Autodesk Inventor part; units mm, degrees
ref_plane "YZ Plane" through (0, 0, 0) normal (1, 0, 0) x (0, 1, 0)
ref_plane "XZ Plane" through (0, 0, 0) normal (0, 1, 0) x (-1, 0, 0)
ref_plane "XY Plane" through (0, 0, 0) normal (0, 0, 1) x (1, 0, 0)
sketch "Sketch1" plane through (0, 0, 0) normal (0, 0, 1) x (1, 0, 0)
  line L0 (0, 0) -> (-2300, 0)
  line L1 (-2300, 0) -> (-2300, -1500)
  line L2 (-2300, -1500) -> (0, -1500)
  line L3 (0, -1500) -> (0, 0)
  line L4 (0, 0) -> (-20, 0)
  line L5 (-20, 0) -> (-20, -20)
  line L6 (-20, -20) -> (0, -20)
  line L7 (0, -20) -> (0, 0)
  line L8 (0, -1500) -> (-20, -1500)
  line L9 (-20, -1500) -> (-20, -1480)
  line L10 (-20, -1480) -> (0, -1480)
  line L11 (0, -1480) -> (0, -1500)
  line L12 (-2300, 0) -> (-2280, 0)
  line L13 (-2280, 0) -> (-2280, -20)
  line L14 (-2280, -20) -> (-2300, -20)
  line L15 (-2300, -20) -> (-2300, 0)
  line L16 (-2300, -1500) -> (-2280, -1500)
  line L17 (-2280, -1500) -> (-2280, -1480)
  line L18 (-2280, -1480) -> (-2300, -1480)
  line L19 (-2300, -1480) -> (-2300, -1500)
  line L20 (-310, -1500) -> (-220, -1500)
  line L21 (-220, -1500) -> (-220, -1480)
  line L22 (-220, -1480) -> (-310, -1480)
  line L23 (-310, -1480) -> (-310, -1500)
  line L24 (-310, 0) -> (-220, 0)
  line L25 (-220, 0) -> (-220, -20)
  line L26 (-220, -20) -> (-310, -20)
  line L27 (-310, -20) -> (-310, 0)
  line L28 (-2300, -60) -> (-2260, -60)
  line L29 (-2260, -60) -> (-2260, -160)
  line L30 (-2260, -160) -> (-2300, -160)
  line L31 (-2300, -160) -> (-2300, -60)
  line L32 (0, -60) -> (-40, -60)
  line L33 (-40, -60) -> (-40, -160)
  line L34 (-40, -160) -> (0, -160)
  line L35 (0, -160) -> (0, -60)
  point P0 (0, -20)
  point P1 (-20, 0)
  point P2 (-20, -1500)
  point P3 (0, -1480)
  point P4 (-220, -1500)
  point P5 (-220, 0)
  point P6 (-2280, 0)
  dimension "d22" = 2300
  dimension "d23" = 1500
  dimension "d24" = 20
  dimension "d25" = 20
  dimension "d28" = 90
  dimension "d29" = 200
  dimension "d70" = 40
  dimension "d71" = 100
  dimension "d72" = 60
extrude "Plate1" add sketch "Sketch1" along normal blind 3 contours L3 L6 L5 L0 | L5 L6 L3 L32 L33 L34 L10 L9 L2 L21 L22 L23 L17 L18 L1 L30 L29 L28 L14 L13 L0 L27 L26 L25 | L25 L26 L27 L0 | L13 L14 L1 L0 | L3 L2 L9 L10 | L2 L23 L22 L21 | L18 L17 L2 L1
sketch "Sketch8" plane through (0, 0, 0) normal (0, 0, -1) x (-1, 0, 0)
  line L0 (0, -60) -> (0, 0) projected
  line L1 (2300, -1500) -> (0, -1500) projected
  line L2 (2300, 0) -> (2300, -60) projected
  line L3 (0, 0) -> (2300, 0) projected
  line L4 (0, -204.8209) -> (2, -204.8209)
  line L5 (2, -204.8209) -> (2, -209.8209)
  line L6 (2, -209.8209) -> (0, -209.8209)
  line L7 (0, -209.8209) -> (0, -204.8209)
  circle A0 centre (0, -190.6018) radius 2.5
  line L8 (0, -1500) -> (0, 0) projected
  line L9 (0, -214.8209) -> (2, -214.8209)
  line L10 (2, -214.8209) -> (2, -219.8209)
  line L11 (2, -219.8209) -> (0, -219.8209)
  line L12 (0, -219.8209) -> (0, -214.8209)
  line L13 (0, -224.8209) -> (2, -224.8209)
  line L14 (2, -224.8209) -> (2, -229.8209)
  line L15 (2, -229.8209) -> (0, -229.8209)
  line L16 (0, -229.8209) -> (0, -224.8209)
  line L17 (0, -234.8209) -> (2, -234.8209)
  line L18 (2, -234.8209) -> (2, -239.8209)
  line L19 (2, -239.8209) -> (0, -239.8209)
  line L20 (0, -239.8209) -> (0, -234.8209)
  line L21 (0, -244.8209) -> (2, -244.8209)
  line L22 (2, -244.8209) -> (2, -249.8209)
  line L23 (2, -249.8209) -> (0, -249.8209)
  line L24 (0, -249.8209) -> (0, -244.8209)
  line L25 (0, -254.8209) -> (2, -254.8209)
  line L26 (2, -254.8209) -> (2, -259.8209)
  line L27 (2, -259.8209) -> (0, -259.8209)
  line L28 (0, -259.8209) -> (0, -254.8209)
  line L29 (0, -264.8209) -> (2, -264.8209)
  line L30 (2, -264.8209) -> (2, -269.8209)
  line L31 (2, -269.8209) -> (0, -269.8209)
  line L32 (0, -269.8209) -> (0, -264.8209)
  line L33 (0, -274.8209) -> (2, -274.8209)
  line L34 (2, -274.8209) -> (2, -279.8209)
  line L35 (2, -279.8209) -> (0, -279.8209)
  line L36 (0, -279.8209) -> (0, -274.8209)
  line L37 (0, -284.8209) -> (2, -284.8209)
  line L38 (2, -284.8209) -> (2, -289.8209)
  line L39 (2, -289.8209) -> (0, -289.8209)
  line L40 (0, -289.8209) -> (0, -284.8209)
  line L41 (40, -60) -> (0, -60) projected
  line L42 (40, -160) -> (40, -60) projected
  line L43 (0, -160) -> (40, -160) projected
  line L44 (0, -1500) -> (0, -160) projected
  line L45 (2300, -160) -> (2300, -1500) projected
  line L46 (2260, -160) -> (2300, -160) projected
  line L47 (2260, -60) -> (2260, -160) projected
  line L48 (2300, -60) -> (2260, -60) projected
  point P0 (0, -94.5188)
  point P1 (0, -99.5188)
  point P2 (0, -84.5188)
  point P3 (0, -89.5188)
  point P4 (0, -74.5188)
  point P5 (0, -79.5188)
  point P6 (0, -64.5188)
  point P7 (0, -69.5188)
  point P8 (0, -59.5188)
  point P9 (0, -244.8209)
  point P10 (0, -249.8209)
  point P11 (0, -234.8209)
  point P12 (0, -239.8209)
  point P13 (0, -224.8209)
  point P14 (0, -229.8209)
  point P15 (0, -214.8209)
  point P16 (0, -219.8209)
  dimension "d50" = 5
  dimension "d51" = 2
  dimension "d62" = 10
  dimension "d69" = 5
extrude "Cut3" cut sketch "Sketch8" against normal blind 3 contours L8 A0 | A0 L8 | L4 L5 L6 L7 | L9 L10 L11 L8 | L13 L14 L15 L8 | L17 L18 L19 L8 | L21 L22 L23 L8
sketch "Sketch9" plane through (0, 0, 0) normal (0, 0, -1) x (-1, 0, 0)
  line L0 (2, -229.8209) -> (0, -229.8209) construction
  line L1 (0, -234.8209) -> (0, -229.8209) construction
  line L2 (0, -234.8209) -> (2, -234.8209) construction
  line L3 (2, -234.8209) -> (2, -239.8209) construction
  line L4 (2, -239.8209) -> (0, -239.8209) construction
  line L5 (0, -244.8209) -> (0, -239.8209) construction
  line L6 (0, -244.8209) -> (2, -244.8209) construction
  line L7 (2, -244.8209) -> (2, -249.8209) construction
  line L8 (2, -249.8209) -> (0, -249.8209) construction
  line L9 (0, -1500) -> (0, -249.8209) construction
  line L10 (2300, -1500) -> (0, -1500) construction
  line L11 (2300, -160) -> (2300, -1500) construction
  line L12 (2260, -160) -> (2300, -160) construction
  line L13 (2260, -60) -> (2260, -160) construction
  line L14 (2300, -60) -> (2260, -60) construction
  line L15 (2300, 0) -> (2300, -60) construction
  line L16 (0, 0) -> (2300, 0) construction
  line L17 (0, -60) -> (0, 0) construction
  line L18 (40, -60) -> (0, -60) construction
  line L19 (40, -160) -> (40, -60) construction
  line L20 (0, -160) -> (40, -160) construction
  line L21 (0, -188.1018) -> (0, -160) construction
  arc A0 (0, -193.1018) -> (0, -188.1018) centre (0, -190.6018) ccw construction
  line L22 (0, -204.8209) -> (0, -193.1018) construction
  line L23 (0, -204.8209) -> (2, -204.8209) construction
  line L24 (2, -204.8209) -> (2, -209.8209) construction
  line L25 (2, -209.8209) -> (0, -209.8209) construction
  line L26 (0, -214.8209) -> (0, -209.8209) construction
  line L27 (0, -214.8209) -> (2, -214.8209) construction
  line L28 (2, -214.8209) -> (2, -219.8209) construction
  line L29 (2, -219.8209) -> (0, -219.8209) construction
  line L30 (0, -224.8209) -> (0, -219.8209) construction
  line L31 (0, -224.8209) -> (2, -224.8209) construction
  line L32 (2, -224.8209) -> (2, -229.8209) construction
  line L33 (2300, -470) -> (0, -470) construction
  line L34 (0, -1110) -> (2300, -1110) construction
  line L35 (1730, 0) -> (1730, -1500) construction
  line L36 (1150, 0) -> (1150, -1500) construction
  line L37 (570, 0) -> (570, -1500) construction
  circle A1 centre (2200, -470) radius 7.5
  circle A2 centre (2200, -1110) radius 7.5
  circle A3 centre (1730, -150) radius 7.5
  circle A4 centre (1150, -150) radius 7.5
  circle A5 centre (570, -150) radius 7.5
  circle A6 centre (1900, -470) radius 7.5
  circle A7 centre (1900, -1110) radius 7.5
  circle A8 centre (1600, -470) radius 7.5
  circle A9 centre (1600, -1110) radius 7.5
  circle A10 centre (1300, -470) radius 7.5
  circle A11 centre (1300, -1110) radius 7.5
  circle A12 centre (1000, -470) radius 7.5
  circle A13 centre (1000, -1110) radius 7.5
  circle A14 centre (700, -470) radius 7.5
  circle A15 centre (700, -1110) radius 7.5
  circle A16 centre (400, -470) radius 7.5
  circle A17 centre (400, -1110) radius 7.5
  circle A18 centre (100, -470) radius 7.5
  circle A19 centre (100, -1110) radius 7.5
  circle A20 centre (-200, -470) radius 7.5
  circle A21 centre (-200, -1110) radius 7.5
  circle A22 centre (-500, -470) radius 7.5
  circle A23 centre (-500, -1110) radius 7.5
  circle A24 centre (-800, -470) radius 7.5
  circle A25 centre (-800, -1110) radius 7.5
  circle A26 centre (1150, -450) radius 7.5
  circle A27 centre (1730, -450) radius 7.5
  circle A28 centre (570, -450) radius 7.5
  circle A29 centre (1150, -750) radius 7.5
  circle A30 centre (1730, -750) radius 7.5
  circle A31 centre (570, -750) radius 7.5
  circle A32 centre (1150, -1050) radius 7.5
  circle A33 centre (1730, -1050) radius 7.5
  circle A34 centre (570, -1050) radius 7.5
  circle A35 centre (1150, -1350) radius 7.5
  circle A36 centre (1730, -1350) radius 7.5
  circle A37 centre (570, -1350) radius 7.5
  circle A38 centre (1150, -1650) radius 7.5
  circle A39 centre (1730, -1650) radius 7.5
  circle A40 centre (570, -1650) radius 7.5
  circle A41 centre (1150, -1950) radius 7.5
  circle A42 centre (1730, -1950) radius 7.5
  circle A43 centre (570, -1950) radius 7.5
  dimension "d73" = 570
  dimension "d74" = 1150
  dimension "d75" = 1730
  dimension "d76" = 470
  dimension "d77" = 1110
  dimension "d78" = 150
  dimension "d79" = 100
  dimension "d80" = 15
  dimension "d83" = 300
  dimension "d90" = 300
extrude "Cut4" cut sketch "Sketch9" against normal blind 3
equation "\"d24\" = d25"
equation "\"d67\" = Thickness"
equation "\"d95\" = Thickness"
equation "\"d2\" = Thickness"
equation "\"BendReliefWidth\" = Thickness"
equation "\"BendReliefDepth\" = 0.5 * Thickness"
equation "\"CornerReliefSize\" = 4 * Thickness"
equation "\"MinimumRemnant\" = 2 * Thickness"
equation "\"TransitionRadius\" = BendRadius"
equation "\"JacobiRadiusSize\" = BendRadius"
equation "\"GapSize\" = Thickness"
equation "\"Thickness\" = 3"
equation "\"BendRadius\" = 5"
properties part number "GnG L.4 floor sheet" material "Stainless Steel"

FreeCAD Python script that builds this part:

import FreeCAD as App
import Part
import Sketcher
from FreeCAD import Vector


def add_polygon(sketch, points):
    """Adds a closed chain of lines whose ends are joined by coincident constraints."""
    first, n = sketch.GeometryCount, len(points)
    for a, b in zip(points, points[1:] + points[:1]):
        sketch.addGeometry(Part.LineSegment(App.Vector(*a, 0), App.Vector(*b, 0)), False)
    for i in range(n):
        sketch.addConstraint(Sketcher.Constraint("Coincident", first + i, 2, first + (i + 1) % n, 1))

doc = App.newDocument("Part")
body = doc.addObject("PartDesign::Body", "Body")

# Sketch on XY plane
sketch1 = body.newObject("Sketcher::SketchObject", "Sketch")
sketch1.AttachmentSupport = (doc.getObject("XY_Plane"), [""])
sketch1.MapMode = "FlatFace"
add_polygon(sketch1, [(0, 0), (-2300, 0), (-2300, -60), (-2260, -60), (-2260, -160), (-2300, -160), (-2300, -1500), (0, -1500), (0, -160), (-40, -160), (-40, -60), (0, -60)])  # lines 0-11
sketch1.addConstraint([
    Sketcher.Constraint("Horizontal", 0),
    Sketcher.Constraint("Vertical", 1),
    Sketcher.Constraint("Horizontal", 2),
    Sketcher.Constraint("Vertical", 3),
    Sketcher.Constraint("Horizontal", 4),
    Sketcher.Constraint("Vertical", 5),
    Sketcher.Constraint("Horizontal", 6),
    Sketcher.Constraint("Vertical", 7),
    Sketcher.Constraint("Horizontal", 8),
    Sketcher.Constraint("Vertical", 9),
    Sketcher.Constraint("Horizontal", 10),
    Sketcher.Constraint("Vertical", 11),
    Sketcher.Constraint("Coincident", 11, 2, -1, 1),
    Sketcher.Constraint("PointOnObject", 6, 2, -2),
    Sketcher.Constraint("Horizontal", 4, 2, 7, 2),
    Sketcher.Constraint("Horizontal", 2, 2, 9, 2),
    Sketcher.Constraint("Vertical", 1, 2, 4, 2),
    Sketcher.Constraint("Equal", 4, 8),
    Sketcher.Constraint("DistanceX", 0, 2, 0, 1, 2300.0),
    Sketcher.Constraint("DistanceX", 2, 1, 2, 2, 40.0),
    Sketcher.Constraint("DistanceY", 1, 2, 1, 1, 60.0),
    Sketcher.Constraint("DistanceY", 3, 2, 3, 1, 100.0),
    Sketcher.Constraint("DistanceY", 5, 2, -1, 1, 1500.0),
])
pad1 = body.newObject("PartDesign::Pad", "Pad")
pad1.Profile = sketch1
pad1.Length = 3

# Sketch on XY plane
sketch2 = body.newObject("Sketcher::SketchObject", "Sketch001")
sketch2.AttachmentSupport = (doc.getObject("XY_Plane"), [""])
sketch2.MapMode = "FlatFace"
sketch2.addGeometry(Part.Circle(Vector(0, -190.6, 0), Vector(0, 0, 1), 2.5), False)  # 0
add_polygon(sketch2, [(-2, -204.8), (0, -204.8), (0, -209.8), (-2, -209.8)])  # lines 1-4
add_polygon(sketch2, [(-2, -214.8), (0, -214.8), (0, -219.8), (-2, -219.8)])  # lines 5-8
add_polygon(sketch2, [(-2, -224.8), (0, -224.8), (0, -229.8), (-2, -229.8)])  # lines 9-12
add_polygon(sketch2, [(-2, -234.8), (0, -234.8), (0, -239.8), (-2, -239.8)])  # lines 13-16
add_polygon(sketch2, [(-2, -244.8), (0, -244.8), (0, -249.8), (-2, -249.8)])  # lines 17-20
sketch2.addConstraint([
    Sketcher.Constraint("Horizontal", 1),
    Sketcher.Constraint("Vertical", 2),
    Sketcher.Constraint("Horizontal", 3),
    Sketcher.Constraint("Vertical", 4),
    Sketcher.Constraint("Horizontal", 5),
    Sketcher.Constraint("Vertical", 6),
    Sketcher.Constraint("Horizontal", 7),
    Sketcher.Constraint("Vertical", 8),
    Sketcher.Constraint("Horizontal", 9),
    Sketcher.Constraint("Vertical", 10),
    Sketcher.Constraint("Horizontal", 11),
    Sketcher.Constraint("Vertical", 12),
    Sketcher.Constraint("Horizontal", 13),
    Sketcher.Constraint("Vertical", 14),
    Sketcher.Constraint("Horizontal", 15),
    Sketcher.Constraint("Vertical", 16),
    Sketcher.Constraint("Horizontal", 17),
    Sketcher.Constraint("Vertical", 18),
    Sketcher.Constraint("Horizontal", 19),
    Sketcher.Constraint("Vertical", 20),
    Sketcher.Constraint("PointOnObject", 0, 3, -2),
    Sketcher.Constraint("PointOnObject", 1, 2, -2),
    Sketcher.Constraint("PointOnObject", 5, 2, -2),
    Sketcher.Constraint("PointOnObject", 9, 2, -2),
    Sketcher.Constraint("PointOnObject", 13, 2, -2),
    Sketcher.Constraint("PointOnObject", 17, 2, -2),
    Sketcher.Constraint("Vertical", 4, 2, 7, 2),
    Sketcher.Constraint("Vertical", 8, 2, 11, 2),
    Sketcher.Constraint("Vertical", 12, 2, 15, 2),
    Sketcher.Constraint("Vertical", 16, 2, 19, 2),
    Sketcher.Constraint("Equal", 4, 6),
    Sketcher.Constraint("Equal", 8, 10),
    Sketcher.Constraint("Equal", 12, 14),
    Sketcher.Constraint("Equal", 16, 18),
    Sketcher.Constraint("Diameter", 0, 5.0),
    Sketcher.Constraint("DistanceX", 1, 1, 1, 2, 2.0),
    Sketcher.Constraint("DistanceY", 2, 2, 2, 1, 5.0),
    Sketcher.Constraint("DistanceY", 5, 2, 2, 2, 5.0),
    Sketcher.Constraint("DistanceY", 9, 2, 6, 2, 5.0),
    Sketcher.Constraint("DistanceY", 13, 2, 10, 2, 5.0),
    Sketcher.Constraint("DistanceY", 17, 2, 14, 2, 5.0),
    Sketcher.Constraint("DistanceY", 1, 2, -1, 1, 204.821),
    Sketcher.Constraint("DistanceY", 1, 2, 0, 3, 14.219),
])
pocket1 = body.newObject("PartDesign::Pocket", "Pocket")
pocket1.Profile = sketch2
pocket1.Length = 3
pocket1.Reversed = True

# Sketch on XY plane
sketch3 = body.newObject("Sketcher::SketchObject", "Sketch002")
sketch3.AttachmentSupport = (doc.getObject("XY_Plane"), [""])
sketch3.MapMode = "FlatFace"
sketch3.addGeometry([
    Part.Circle(Vector(-2200, -470, 0), Vector(0, 0, 1), 8),  # 0
    Part.Circle(Vector(-2200, -1110, 0), Vector(0, 0, 1), 8),  # 1
    Part.Circle(Vector(-1730, -150, 0), Vector(0, 0, 1), 8),  # 2
    Part.Circle(Vector(-1150, -150, 0), Vector(0, 0, 1), 8),  # 3
    Part.Circle(Vector(-570, -150, 0), Vector(0, 0, 1), 8),  # 4
    Part.Circle(Vector(-1900, -470, 0), Vector(0, 0, 1), 8),  # 5
    Part.Circle(Vector(-1900, -1110, 0), Vector(0, 0, 1), 8),  # 6
    Part.Circle(Vector(-1600, -470, 0), Vector(0, 0, 1), 8),  # 7
    Part.Circle(Vector(-1600, -1110, 0), Vector(0, 0, 1), 8),  # 8
    Part.Circle(Vector(-1300, -470, 0), Vector(0, 0, 1), 8),  # 9
    Part.Circle(Vector(-1300, -1110, 0), Vector(0, 0, 1), 8),  # 10
    Part.Circle(Vector(-1000, -470, 0), Vector(0, 0, 1), 8),  # 11
    Part.Circle(Vector(-1000, -1110, 0), Vector(0, 0, 1), 8),  # 12
    Part.Circle(Vector(-700, -470, 0), Vector(0, 0, 1), 8),  # 13
    Part.Circle(Vector(-700, -1110, 0), Vector(0, 0, 1), 8),  # 14
    Part.Circle(Vector(-400, -470, 0), Vector(0, 0, 1), 8),  # 15
    Part.Circle(Vector(-400, -1110, 0), Vector(0, 0, 1), 8),  # 16
    Part.Circle(Vector(-100, -470, 0), Vector(0, 0, 1), 8),  # 17
    Part.Circle(Vector(-100, -1110, 0), Vector(0, 0, 1), 8),  # 18
    Part.Circle(Vector(200, -470, 0), Vector(0, 0, 1), 8),  # 19
    Part.Circle(Vector(200, -1110, 0), Vector(0, 0, 1), 8),  # 20
    Part.Circle(Vector(500, -470, 0), Vector(0, 0, 1), 8),  # 21
    Part.Circle(Vector(500, -1110, 0), Vector(0, 0, 1), 8),  # 22
    Part.Circle(Vector(800, -470, 0), Vector(0, 0, 1), 8),  # 23
    Part.Circle(Vector(800, -1110, 0), Vector(0, 0, 1), 8),  # 24
    Part.Circle(Vector(-1150, -450, 0), Vector(0, 0, 1), 8),  # 25
    Part.Circle(Vector(-1730, -450, 0), Vector(0, 0, 1), 8),  # 26
    Part.Circle(Vector(-570, -450, 0), Vector(0, 0, 1), 8),  # 27
    Part.Circle(Vector(-1150, -750, 0), Vector(0, 0, 1), 8),  # 28
    Part.Circle(Vector(-1730, -750, 0), Vector(0, 0, 1), 8),  # 29
    Part.Circle(Vector(-570, -750, 0), Vector(0, 0, 1), 8),  # 30
    Part.Circle(Vector(-1150, -1050, 0), Vector(0, 0, 1), 8),  # 31
    Part.Circle(Vector(-1730, -1050, 0), Vector(0, 0, 1), 8),  # 32
    Part.Circle(Vector(-570, -1050, 0), Vector(0, 0, 1), 8),  # 33
    Part.Circle(Vector(-1150, -1350, 0), Vector(0, 0, 1), 8),  # 34
    Part.Circle(Vector(-1730, -1350, 0), Vector(0, 0, 1), 8),  # 35
    Part.Circle(Vector(-570, -1350, 0), Vector(0, 0, 1), 8),  # 36
    Part.Circle(Vector(-1150, -1650, 0), Vector(0, 0, 1), 8),  # 37
    Part.Circle(Vector(-1730, -1650, 0), Vector(0, 0, 1), 8),  # 38
    Part.Circle(Vector(-570, -1650, 0), Vector(0, 0, 1), 8),  # 39
    Part.Circle(Vector(-1150, -1950, 0), Vector(0, 0, 1), 8),  # 40
    Part.Circle(Vector(-1730, -1950, 0), Vector(0, 0, 1), 8),  # 41
    Part.Circle(Vector(-570, -1950, 0), Vector(0, 0, 1), 8),  # 42
], False)
sketch3.addConstraint([
    Sketcher.Constraint("Equal", 0, 1),
    Sketcher.Constraint("Equal", 1, 2),
    Sketcher.Constraint("Equal", 2, 3),
    Sketcher.Constraint("Equal", 3, 4),
    Sketcher.Constraint("Equal", 4, 5),
    Sketcher.Constraint("Equal", 5, 6),
    Sketcher.Constraint("Equal", 6, 7),
    Sketcher.Constraint("Equal", 7, 8),
    Sketcher.Constraint("Equal", 8, 9),
    Sketcher.Constraint("Equal", 9, 10),
    Sketcher.Constraint("Equal", 10, 11),
    Sketcher.Constraint("Equal", 11, 12),
    Sketcher.Constraint("Equal", 12, 13),
    Sketcher.Constraint("Equal", 13, 14),
    Sketcher.Constraint("Equal", 14, 15),
    Sketcher.Constraint("Equal", 15, 16),
    Sketcher.Constraint("Equal", 16, 17),
    Sketcher.Constraint("Equal", 17, 18),
    Sketcher.Constraint("Equal", 18, 19),
    Sketcher.Constraint("Equal", 19, 20),
    Sketcher.Constraint("Equal", 20, 21),
    Sketcher.Constraint("Equal", 21, 22),
    Sketcher.Constraint("Equal", 22, 23),
    Sketcher.Constraint("Equal", 23, 24),
    Sketcher.Constraint("Equal", 24, 25),
    Sketcher.Constraint("Equal", 25, 26),
    Sketcher.Constraint("Equal", 26, 27),
    Sketcher.Constraint("Equal", 27, 28),
    Sketcher.Constraint("Equal", 28, 29),
    Sketcher.Constraint("Equal", 29, 30),
    Sketcher.Constraint("Equal", 30, 31),
    Sketcher.Constraint("Equal", 31, 32),
    Sketcher.Constraint("Equal", 32, 33),
    Sketcher.Constraint("Equal", 33, 34),
    Sketcher.Constraint("Equal", 34, 35),
    Sketcher.Constraint("Equal", 35, 36),
    Sketcher.Constraint("Equal", 36, 37),
    Sketcher.Constraint("Equal", 37, 38),
    Sketcher.Constraint("Equal", 38, 39),
    Sketcher.Constraint("Equal", 39, 40),
    Sketcher.Constraint("Equal", 40, 41),
    Sketcher.Constraint("Equal", 41, 42),
    Sketcher.Constraint("Horizontal", 2, 3, 3, 3),
    Sketcher.Constraint("Horizontal", 3, 3, 4, 3),
    Sketcher.Constraint("Horizontal", 0, 3, 5, 3),
    Sketcher.Constraint("Horizontal", 1, 3, 6, 3),
    Sketcher.Constraint("Horizontal", 5, 3, 7, 3),
    Sketcher.Constraint("Horizontal", 6, 3, 8, 3),
    Sketcher.Constraint("Horizontal", 7, 3, 9, 3),
    Sketcher.Constraint("Horizontal", 8, 3, 10, 3),
    Sketcher.Constraint("Horizontal", 9, 3, 11, 3),
    Sketcher.Constraint("Horizontal", 10, 3, 12, 3),
    Sketcher.Constraint("Horizontal", 11, 3, 13, 3),
    Sketcher.Constraint("Horizontal", 12, 3, 14, 3),
    Sketcher.Constraint("Horizontal", 13, 3, 15, 3),
    Sketcher.Constraint("Horizontal", 14, 3, 16, 3),
    Sketcher.Constraint("Horizontal", 15, 3, 17, 3),
    Sketcher.Constraint("Horizontal", 16, 3, 18, 3),
    Sketcher.Constraint("Horizontal", 17, 3, 19, 3),
    Sketcher.Constraint("Horizontal", 18, 3, 20, 3),
    Sketcher.Constraint("Horizontal", 19, 3, 21, 3),
    Sketcher.Constraint("Horizontal", 20, 3, 22, 3),
    Sketcher.Constraint("Horizontal", 21, 3, 23, 3),
    Sketcher.Constraint("Horizontal", 22, 3, 24, 3),
    Sketcher.Constraint("Horizontal", 25, 3, 26, 3),
    Sketcher.Constraint("Horizontal", 26, 3, 27, 3),
    Sketcher.Constraint("Horizontal", 28, 3, 29, 3),
    Sketcher.Constraint("Horizontal", 29, 3, 30, 3),
    Sketcher.Constraint("Horizontal", 31, 3, 32, 3),
    Sketcher.Constraint("Horizontal", 32, 3, 33, 3),
    Sketcher.Constraint("Horizontal", 34, 3, 35, 3),
    Sketcher.Constraint("Horizontal", 35, 3, 36, 3),
    Sketcher.Constraint("Horizontal", 37, 3, 38, 3),
    Sketcher.Constraint("Horizontal", 38, 3, 39, 3),
    Sketcher.Constraint("Horizontal", 40, 3, 41, 3),
    Sketcher.Constraint("Horizontal", 41, 3, 42, 3),
    Sketcher.Constraint("Vertical", 0, 3, 1, 3),
    Sketcher.Constraint("Vertical", 5, 3, 6, 3),
    Sketcher.Constraint("Vertical", 7, 3, 8, 3),
    Sketcher.Constraint("Vertical", 9, 3, 10, 3),
    Sketcher.Constraint("Vertical", 11, 3, 12, 3),
    Sketcher.Constraint("Vertical", 13, 3, 14, 3),
    Sketcher.Constraint("Vertical", 15, 3, 16, 3),
    Sketcher.Constraint("Vertical", 17, 3, 18, 3),
    Sketcher.Constraint("Vertical", 19, 3, 20, 3),
    Sketcher.Constraint("Vertical", 21, 3, 22, 3),
    Sketcher.Constraint("Vertical", 23, 3, 24, 3),
    Sketcher.Constraint("Vertical", 3, 3, 25, 3),
    Sketcher.Constraint("Vertical", 2, 3, 26, 3),
    Sketcher.Constraint("Vertical", 4, 3, 27, 3),
    Sketcher.Constraint("Vertical", 25, 3, 28, 3),
    Sketcher.Constraint("Vertical", 26, 3, 29, 3),
    Sketcher.Constraint("Vertical", 27, 3, 30, 3),
    Sketcher.Constraint("Vertical", 28, 3, 31, 3),
    Sketcher.Constraint("Vertical", 29, 3, 32, 3),
    Sketcher.Constraint("Vertical", 30, 3, 33, 3),
    Sketcher.Constraint("Vertical", 31, 3, 34, 3),
    Sketcher.Constraint("Vertical", 32, 3, 35, 3),
    Sketcher.Constraint("Vertical", 33, 3, 36, 3),
    Sketcher.Constraint("Vertical", 34, 3, 37, 3),
    Sketcher.Constraint("Vertical", 35, 3, 38, 3),
    Sketcher.Constraint("Vertical", 36, 3, 39, 3),
    Sketcher.Constraint("Vertical", 37, 3, 40, 3),
    Sketcher.Constraint("Vertical", 38, 3, 41, 3),
    Sketcher.Constraint("Vertical", 39, 3, 42, 3),
    Sketcher.Constraint("Diameter", 0, 15.0),
    Sketcher.Constraint("DistanceY", 0, 3, -1, 1, 470.0),
    Sketcher.Constraint("DistanceY", 1, 3, -1, 1, 1110.0),
    Sketcher.Constraint("DistanceX", 2, 3, -1, 1, 1730.0),
    Sketcher.Constraint("DistanceY", 2, 3, -1, 1, 150.0),
    Sketcher.Constraint("DistanceX", 3, 3, -1, 1, 1150.0),
    Sketcher.Constraint("DistanceX", 4, 3, -1, 1, 570.0),
    Sketcher.Constraint("DistanceX", 17, 3, -1, 1, 100.0),
    Sketcher.Constraint("DistanceX", 0, 3, 2, 3, 470.0),
    Sketcher.Constraint("DistanceX", 0, 3, 5, 3, 300.0),
    Sketcher.Constraint("DistanceX", 5, 3, 7, 3, 300.0),
    Sketcher.Constraint("DistanceX", 7, 3, 9, 3, 300.0),
    Sketcher.Constraint("DistanceX", 9, 3, 11, 3, 300.0),
    Sketcher.Constraint("DistanceX", 11, 3, 13, 3, 300.0),
    Sketcher.Constraint("DistanceX", 13, 3, 15, 3, 300.0),
    Sketcher.Constraint("DistanceX", 17, 3, 19, 3, 300.0),
    Sketcher.Constraint("DistanceX", 19, 3, 21, 3, 300.0),
    Sketcher.Constraint("DistanceX", 21, 3, 23, 3, 300.0),
    Sketcher.Constraint("DistanceY", 25, 3, 3, 3, 300.0),
    Sketcher.Constraint("DistanceY", 28, 3, 25, 3, 300.0),
    Sketcher.Constraint("DistanceY", 31, 3, 28, 3, 300.0),
    Sketcher.Constraint("DistanceY", 34, 3, 31, 3, 300.0),
    Sketcher.Constraint("DistanceY", 37, 3, 34, 3, 300.0),
    Sketcher.Constraint("DistanceY", 40, 3, 37, 3, 300.0),
])
pocket2 = body.newObject("PartDesign::Pocket", "Pocket001")
pocket2.Profile = sketch3
pocket2.Length = 3
pocket2.Reversed = True

doc.recompute()
